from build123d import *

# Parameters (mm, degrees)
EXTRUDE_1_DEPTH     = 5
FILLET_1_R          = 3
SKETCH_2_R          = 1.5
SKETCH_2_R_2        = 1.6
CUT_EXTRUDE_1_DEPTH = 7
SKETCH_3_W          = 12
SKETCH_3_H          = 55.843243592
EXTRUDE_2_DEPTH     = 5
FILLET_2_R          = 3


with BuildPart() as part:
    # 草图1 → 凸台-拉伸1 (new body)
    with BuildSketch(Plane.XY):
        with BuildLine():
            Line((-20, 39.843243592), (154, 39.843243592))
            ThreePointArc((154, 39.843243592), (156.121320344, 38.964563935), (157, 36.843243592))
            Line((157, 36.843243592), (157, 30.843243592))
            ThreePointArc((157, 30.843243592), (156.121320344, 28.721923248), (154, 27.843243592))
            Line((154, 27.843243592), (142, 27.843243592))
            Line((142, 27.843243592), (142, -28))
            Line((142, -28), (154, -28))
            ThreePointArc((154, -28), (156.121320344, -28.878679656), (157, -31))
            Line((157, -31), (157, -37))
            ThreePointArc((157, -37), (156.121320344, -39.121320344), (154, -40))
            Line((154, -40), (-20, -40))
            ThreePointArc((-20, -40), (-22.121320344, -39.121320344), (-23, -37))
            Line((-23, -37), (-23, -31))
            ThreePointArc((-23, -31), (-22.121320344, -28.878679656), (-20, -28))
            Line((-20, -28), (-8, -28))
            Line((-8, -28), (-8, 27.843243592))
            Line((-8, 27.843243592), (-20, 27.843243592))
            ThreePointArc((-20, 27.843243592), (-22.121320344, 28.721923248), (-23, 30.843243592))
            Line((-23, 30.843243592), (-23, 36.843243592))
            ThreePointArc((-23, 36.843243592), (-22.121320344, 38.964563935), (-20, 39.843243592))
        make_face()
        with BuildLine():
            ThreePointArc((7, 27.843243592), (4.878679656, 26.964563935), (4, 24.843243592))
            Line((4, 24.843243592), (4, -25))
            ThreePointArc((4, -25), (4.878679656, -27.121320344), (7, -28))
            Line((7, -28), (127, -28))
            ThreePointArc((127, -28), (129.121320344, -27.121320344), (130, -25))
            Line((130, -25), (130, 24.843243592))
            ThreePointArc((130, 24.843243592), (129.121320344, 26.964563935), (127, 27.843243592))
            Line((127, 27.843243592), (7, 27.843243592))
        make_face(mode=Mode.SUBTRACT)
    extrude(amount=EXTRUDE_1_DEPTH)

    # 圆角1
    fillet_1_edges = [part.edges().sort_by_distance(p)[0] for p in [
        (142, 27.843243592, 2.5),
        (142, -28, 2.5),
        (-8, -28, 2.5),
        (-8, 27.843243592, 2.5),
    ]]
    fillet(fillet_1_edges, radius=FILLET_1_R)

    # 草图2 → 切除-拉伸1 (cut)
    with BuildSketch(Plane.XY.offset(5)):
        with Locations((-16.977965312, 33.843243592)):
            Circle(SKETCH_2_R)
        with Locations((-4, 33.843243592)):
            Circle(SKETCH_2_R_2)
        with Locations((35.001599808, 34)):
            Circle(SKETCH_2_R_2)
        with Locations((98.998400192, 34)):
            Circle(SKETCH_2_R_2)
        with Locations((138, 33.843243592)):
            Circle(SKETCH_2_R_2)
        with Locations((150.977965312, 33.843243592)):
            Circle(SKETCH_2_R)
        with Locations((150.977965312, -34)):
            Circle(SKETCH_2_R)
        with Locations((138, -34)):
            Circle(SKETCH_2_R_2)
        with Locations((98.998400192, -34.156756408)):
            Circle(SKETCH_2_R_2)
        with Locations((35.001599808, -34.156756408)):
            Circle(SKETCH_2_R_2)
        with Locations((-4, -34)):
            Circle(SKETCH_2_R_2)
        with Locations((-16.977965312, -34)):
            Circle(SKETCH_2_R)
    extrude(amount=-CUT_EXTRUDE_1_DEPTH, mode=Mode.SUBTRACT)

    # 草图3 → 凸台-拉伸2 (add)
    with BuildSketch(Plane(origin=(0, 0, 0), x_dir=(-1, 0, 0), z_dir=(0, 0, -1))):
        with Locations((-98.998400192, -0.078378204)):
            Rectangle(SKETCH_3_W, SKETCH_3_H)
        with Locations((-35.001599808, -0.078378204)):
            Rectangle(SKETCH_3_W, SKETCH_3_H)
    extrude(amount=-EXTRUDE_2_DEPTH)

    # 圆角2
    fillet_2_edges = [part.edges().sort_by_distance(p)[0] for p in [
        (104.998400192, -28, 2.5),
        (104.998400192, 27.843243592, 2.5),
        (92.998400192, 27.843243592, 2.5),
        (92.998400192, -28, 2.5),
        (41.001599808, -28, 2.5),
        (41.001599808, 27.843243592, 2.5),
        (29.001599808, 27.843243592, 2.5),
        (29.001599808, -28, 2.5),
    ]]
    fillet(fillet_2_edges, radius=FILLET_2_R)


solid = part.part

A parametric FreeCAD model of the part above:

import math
import FreeCAD as App
import Part
import Sketcher
from FreeCAD import Vector
Q = App.Units.Quantity


def edges_at(feature, points):
    """Names of the edges that pass closest to the given points."""
    edges = feature.Shape.Edges
    near = lambda p: min(range(len(edges)), key=lambda i: edges[i].distToShape(Part.Vertex(*p))[0])
    return sorted({f"Edge{near(p) + 1}" for p in points})


def add_polygon(sketch, points):
    """Adds a closed chain of lines whose ends are joined by coincident constraints."""
    first, n = sketch.GeometryCount, len(points)
    for a, b in zip(points, points[1:] + points[:1]):
        sketch.addGeometry(Part.LineSegment(App.Vector(*a, 0), App.Vector(*b, 0)), False)
    for i in range(n):
        sketch.addConstraint(Sketcher.Constraint("Coincident", first + i, 2, first + (i + 1) % n, 1))

doc = App.newDocument("Part")
params = doc.addObject("Spreadsheet::Sheet", "Params")
for row, (alias, value) in enumerate([
    ("sketch1_radius", "3 mm"),
    ("sketch1_width", "174 mm"),
    ("sketch1_width2", "12 mm"),
    ("sketch1_width3", "120 mm"),
    ("sketch1_height", "6 mm"),
    ("pad1_length", "5 mm"),
    ("fillet_radius", "3 mm"),
    ("sketch2_diameter", "3 mm"),
    ("sketch2_diameter2", "3.2 mm"),
    ("pocket1_length", "7 mm"),
    ("sketch3_width", "12 mm"),
    ("pad2_length", "5 mm"),
    ("fillet2_radius", "3 mm"),
], start=1):
    params.set(f"A{row}", alias)
    params.set(f"B{row}", "=" + value)
    params.setAlias(f"B{row}", alias)

body = doc.addObject("PartDesign::Body", "Body")

# Sketch on XY plane
sketch1 = doc.addObject("Sketcher::SketchObject", "Sketch")
body.addObject(sketch1)
sketch1.AttachmentSupport = (doc.XY_Plane, [""])
sketch1.MapMode = "FlatFace"
sketch1.addGeometry(Part.LineSegment(Vector(154, 39.843244, 0), Vector(-20, 39.843244, 0)), False)
sketch1.addGeometry(Part.ArcOfCircle(Part.Circle(Vector(-20, 36.843244, 0), Vector(0, 0, 1), 3), math.radians(90), math.radians(180)), False)
sketch1.addGeometry(Part.LineSegment(Vector(-23, 36.843244, 0), Vector(-23, 30.843244, 0)), False)
sketch1.addGeometry(Part.ArcOfCircle(Part.Circle(Vector(-20, 30.843244, 0), Vector(0, 0, 1), 3), math.radians(180), math.radians(270)), False)
sketch1.addGeometry(Part.LineSegment(Vector(-20, 27.843244, 0), Vector(-8, 27.843244, 0)), False)
sketch1.addGeometry(Part.LineSegment(Vector(-8, 27.843244, 0), Vector(-8, -28, 0)), False)
sketch1.addGeometry(Part.LineSegment(Vector(-8, -28, 0), Vector(-20, -28, 0)), False)
sketch1.addGeometry(Part.ArcOfCircle(Part.Circle(Vector(-20, -31, 0), Vector(0, 0, 1), 3), math.radians(90), math.radians(180)), False)
sketch1.addGeometry(Part.LineSegment(Vector(-23, -31, 0), Vector(-23, -37, 0)), False)
sketch1.addGeometry(Part.ArcOfCircle(Part.Circle(Vector(-20, -37, 0), Vector(0, 0, 1), 3), math.radians(180), math.radians(270)), False)
sketch1.addGeometry(Part.LineSegment(Vector(-20, -40, 0), Vector(154, -40, 0)), False)
sketch1.addGeometry(Part.ArcOfCircle(Part.Circle(Vector(154, -37, 0), Vector(0, 0, 1), 3), math.radians(-90), math.radians(0)), False)
sketch1.addGeometry(Part.LineSegment(Vector(157, -37, 0), Vector(157, -31, 0)), False)
sketch1.addGeometry(Part.ArcOfCircle(Part.Circle(Vector(154, -31, 0), Vector(0, 0, 1), 3), math.radians(0), math.radians(90)), False)
sketch1.addGeometry(Part.LineSegment(Vector(154, -28, 0), Vector(142, -28, 0)), False)
sketch1.addGeometry(Part.LineSegment(Vector(142, -28, 0), Vector(142, 27.843244, 0)), False)
sketch1.addGeometry(Part.LineSegment(Vector(142, 27.843244, 0), Vector(154, 27.843244, 0)), False)
sketch1.addGeometry(Part.ArcOfCircle(Part.Circle(Vector(154, 30.843244, 0), Vector(0, 0, 1), 3), math.radians(-90), math.radians(0)), False)
sketch1.addGeometry(Part.LineSegment(Vector(157, 30.843244, 0), Vector(157, 36.843244, 0)), False)
sketch1.addGeometry(Part.ArcOfCircle(Part.Circle(Vector(154, 36.843244, 0), Vector(0, 0, 1), 3), math.radians(0), math.radians(90)), False)
sketch1.addGeometry(Part.LineSegment(Vector(7, 27.843244, 0), Vector(127, 27.843244, 0)), False)
sketch1.addGeometry(Part.ArcOfCircle(Part.Circle(Vector(127, 24.843244, 0), Vector(0, 0, 1), 3), math.radians(0), math.radians(90)), False)
sketch1.addGeometry(Part.LineSegment(Vector(130, 24.843244, 0), Vector(130, -25, 0)), False)
sketch1.addGeometry(Part.ArcOfCircle(Part.Circle(Vector(127, -25, 0), Vector(0, 0, 1), 3), math.radians(-90), math.radians(0)), False)
sketch1.addGeometry(Part.LineSegment(Vector(127, -28, 0), Vector(7, -28, 0)), False)
sketch1.addGeometry(Part.ArcOfCircle(Part.Circle(Vector(7, -25, 0), Vector(0, 0, 1), 3), math.radians(180), math.radians(270)), False)
sketch1.addGeometry(Part.LineSegment(Vector(4, -25, 0), Vector(4, 24.843244, 0)), False)
sketch1.addGeometry(Part.ArcOfCircle(Part.Circle(Vector(7, 24.843244, 0), Vector(0, 0, 1), 3), math.radians(90), math.radians(180)), False)
sketch1.addConstraint(Sketcher.Constraint("Tangent", 0, 2, 1, 1))
sketch1.addConstraint(Sketcher.Constraint("Tangent", 1, 2, 2, 1))
sketch1.addConstraint(Sketcher.Constraint("Tangent", 2, 2, 3, 1))
sketch1.addConstraint(Sketcher.Constraint("Tangent", 3, 2, 4, 1))
sketch1.addConstraint(Sketcher.Constraint("Coincident", 4, 2, 5, 1))
sketch1.addConstraint(Sketcher.Constraint("Coincident", 5, 2, 6, 1))
sketch1.addConstraint(Sketcher.Constraint("Tangent", 6, 2, 7, 1))
sketch1.addConstraint(Sketcher.Constraint("Tangent", 7, 2, 8, 1))
sketch1.addConstraint(Sketcher.Constraint("Tangent", 8, 2, 9, 1))
sketch1.addConstraint(Sketcher.Constraint("Tangent", 9, 2, 10, 1))
sketch1.addConstraint(Sketcher.Constraint("Tangent", 10, 2, 11, 1))
sketch1.addConstraint(Sketcher.Constraint("Tangent", 11, 2, 12, 1))
sketch1.addConstraint(Sketcher.Constraint("Tangent", 12, 2, 13, 1))
sketch1.addConstraint(Sketcher.Constraint("Tangent", 13, 2, 14, 1))
sketch1.addConstraint(Sketcher.Constraint("Coincident", 14, 2, 15, 1))
sketch1.addConstraint(Sketcher.Constraint("Coincident", 15, 2, 16, 1))
sketch1.addConstraint(Sketcher.Constraint("Tangent", 16, 2, 17, 1))
sketch1.addConstraint(Sketcher.Constraint("Tangent", 17, 2, 18, 1))
sketch1.addConstraint(Sketcher.Constraint("Tangent", 18, 2, 19, 1))
sketch1.addConstraint(Sketcher.Constraint("Tangent", 19, 2, 0, 1))
sketch1.addConstraint(Sketcher.Constraint("Tangent", 20, 2, 21, 2))
sketch1.addConstraint(Sketcher.Constraint("Tangent", 21, 1, 22, 1))
sketch1.addConstraint(Sketcher.Constraint("Tangent", 22, 2, 23, 2))
sketch1.addConstraint(Sketcher.Constraint("Tangent", 23, 1, 24, 1))
sketch1.addConstraint(Sketcher.Constraint("Tangent", 24, 2, 25, 2))
sketch1.addConstraint(Sketcher.Constraint("Tangent", 25, 1, 26, 1))
sketch1.addConstraint(Sketcher.Constraint("Tangent", 26, 2, 27, 2))
sketch1.addConstraint(Sketcher.Constraint("Tangent", 27, 1, 20, 1))
sketch1.addConstraint(Sketcher.Constraint("Horizontal", 0))
sketch1.addConstraint(Sketcher.Constraint("Vertical", 2))
sketch1.addConstraint(Sketcher.Constraint("Horizontal", 4))
sketch1.addConstraint(Sketcher.Constraint("Vertical", 5))
sketch1.addConstraint(Sketcher.Constraint("Horizontal", 6))
sketch1.addConstraint(Sketcher.Constraint("Vertical", 8))
sketch1.addConstraint(Sketcher.Constraint("Horizontal", 10))
sketch1.addConstraint(Sketcher.Constraint("Vertical", 12))
sketch1.addConstraint(Sketcher.Constraint("Horizontal", 14))
sketch1.addConstraint(Sketcher.Constraint("Vertical", 15))
sketch1.addConstraint(Sketcher.Constraint("Horizontal", 16))
sketch1.addConstraint(Sketcher.Constraint("Vertical", 18))
sketch1.addConstraint(Sketcher.Constraint("Horizontal", 20))
sketch1.addConstraint(Sketcher.Constraint("Vertical", 22))
sketch1.addConstraint(Sketcher.Constraint("Horizontal", 24))
sketch1.addConstraint(Sketcher.Constraint("Vertical", 26))
sketch1.addConstraint(Sketcher.Constraint("Equal", 1, 3))
sketch1.addConstraint(Sketcher.Constraint("Equal", 3, 7))
sketch1.addConstraint(Sketcher.Constraint("Equal", 7, 9))
sketch1.addConstraint(Sketcher.Constraint("Equal", 9, 11))
sketch1.addConstraint(Sketcher.Constraint("Equal", 11, 13))
sketch1.addConstraint(Sketcher.Constraint("Equal", 13, 17))
sketch1.addConstraint(Sketcher.Constraint("Equal", 17, 19))
sketch1.addConstraint(Sketcher.Constraint("Equal", 19, 21))
sketch1.addConstraint(Sketcher.Constraint("Equal", 21, 23))
sketch1.addConstraint(Sketcher.Constraint("Equal", 23, 25))
sketch1.addConstraint(Sketcher.Constraint("Equal", 25, 27))
sketch1.addConstraint(Sketcher.Constraint("Horizontal", 7, 3, 13, 3))
sketch1.addConstraint(Sketcher.Constraint("Horizontal", 3, 3, 17, 3))
sketch1.addConstraint(Sketcher.Constraint("Horizontal", 16, 2, 20, 2))
sketch1.addConstraint(Sketcher.Constraint("Horizontal", 14, 2, 23, 1))
sketch1.addConstraint(Sketcher.Constraint("Vertical", 3, 3, 7, 3))
sketch1.addConstraint(Sketcher.Constraint("Vertical", 13, 3, 17, 3))
sketch1.addConstraint(Sketcher.Constraint("Equal", 6, 14))
sketch1.addConstraint(Sketcher.Constraint("Equal", 2, 8))
sketch1.addConstraint(Sketcher.Constraint("Radius", 1, Q("3 mm")))
sketch1.addConstraint(Sketcher.Constraint("DistanceX", 0, 2, 0, 1, Q("174 mm")))
sketch1.addConstraint(Sketcher.Constraint("DistanceX", 4, 1, 4, 2, Q("12 mm")))
sketch1.addConstraint(Sketcher.Constraint("DistanceX", 20, 1, 20, 2, Q("120 mm")))
sketch1.addConstraint(Sketcher.Constraint("DistanceY", 2, 2, 2, 1, Q("6 mm")))
sketch1.addConstraint(Sketcher.Constraint("DistanceX", 1, 3, -1, 1, Q("20 mm")))
sketch1.addConstraint(Sketcher.Constraint("DistanceY", 7, 3, -1, 1, Q("31 mm")))
sketch1.addConstraint(Sketcher.Constraint("DistanceX", -1, 1, 21, 3, Q("127 mm")))
sketch1.addConstraint(Sketcher.Constraint("DistanceY", 5, 2, 5, 1, Q("55.843244 mm")))
sketch1.setExpression("Constraints[63]", "Params.sketch1_radius")
sketch1.setExpression("Constraints[64]", "Params.sketch1_width")
sketch1.setExpression("Constraints[65]", "Params.sketch1_width2")
sketch1.setExpression("Constraints[66]", "Params.sketch1_width3")
sketch1.setExpression("Constraints[67]", "Params.sketch1_height")
pad1 = doc.addObject("PartDesign::Pad", "Pad")
body.addObject(pad1)
pad1.Profile = sketch1
pad1.setExpression("Length", "Params.pad1_length")
doc.recompute()

fillet = doc.addObject("PartDesign::Fillet", "Fillet")
body.addObject(fillet)
fillet.Base = (pad1, edges_at(pad1, [
    (142, 27.843, 2.5),
    (142, -28, 2.5),
    (-8, -28, 2.5),
    (-8, 27.843, 2.5),
]))
fillet.setExpression("Radius", "Params.fillet_radius")

# Sketch on XY plane
sketch2 = doc.addObject("Sketcher::SketchObject", "Sketch001")
body.addObject(sketch2)
sketch2.AttachmentSupport = (doc.XY_Plane, [""])
sketch2.MapMode = "FlatFace"
sketch2.AttachmentOffset = App.Placement(Vector(0, 0, 5), App.Rotation())
sketch2.addGeometry(Part.Circle(Vector(-16.977965, 33.843244, 0), Vector(0, 0, 1), 1.5), False)
sketch2.addGeometry(Part.Circle(Vector(-4, 33.843244, 0), Vector(0, 0, 1), 1.6), False)
sketch2.addGeometry(Part.Circle(Vector(35.0016, 34, 0), Vector(0, 0, 1), 1.6), False)
sketch2.addGeometry(Part.Circle(Vector(98.9984, 34, 0), Vector(0, 0, 1), 1.6), False)
sketch2.addGeometry(Part.Circle(Vector(138, 33.843244, 0), Vector(0, 0, 1), 1.6), False)
sketch2.addGeometry(Part.Circle(Vector(150.977965, 33.843244, 0), Vector(0, 0, 1), 1.5), False)
sketch2.addGeometry(Part.Circle(Vector(150.977965, -34, 0), Vector(0, 0, 1), 1.5), False)
sketch2.addGeometry(Part.Circle(Vector(138, -34, 0), Vector(0, 0, 1), 1.6), False)
sketch2.addGeometry(Part.Circle(Vector(98.9984, -34.156756, 0), Vector(0, 0, 1), 1.6), False)
sketch2.addGeometry(Part.Circle(Vector(35.0016, -34.156756, 0), Vector(0, 0, 1), 1.6), False)
sketch2.addGeometry(Part.Circle(Vector(-4, -34, 0), Vector(0, 0, 1), 1.6), False)
sketch2.addGeometry(Part.Circle(Vector(-16.977965, -34, 0), Vector(0, 0, 1), 1.5), False)
sketch2.addConstraint(Sketcher.Constraint("Equal", 1, 2))
sketch2.addConstraint(Sketcher.Constraint("Equal", 2, 3))
sketch2.addConstraint(Sketcher.Constraint("Equal", 3, 4))
sketch2.addConstraint(Sketcher.Constraint("Equal", 0, 5))
sketch2.addConstraint(Sketcher.Constraint("Equal", 5, 6))
sketch2.addConstraint(Sketcher.Constraint("Equal", 4, 7))
sketch2.addConstraint(Sketcher.Constraint("Equal", 7, 8))
sketch2.addConstraint(Sketcher.Constraint("Equal", 8, 9))
sketch2.addConstraint(Sketcher.Constraint("Equal", 9, 10))
sketch2.addConstraint(Sketcher.Constraint("Equal", 6, 11))
sketch2.addConstraint(Sketcher.Constraint("Horizontal", 0, 3, 1, 3))
sketch2.addConstraint(Sketcher.Constraint("Horizontal", 2, 3, 3, 3))
sketch2.addConstraint(Sketcher.Constraint("Horizontal", 1, 3, 4, 3))
sketch2.addConstraint(Sketcher.Constraint("Horizontal", 4, 3, 5, 3))
sketch2.addConstraint(Sketcher.Constraint("Horizontal", 6, 3, 7, 3))
sketch2.addConstraint(Sketcher.Constraint("Horizontal", 8, 3, 9, 3))
sketch2.addConstraint(Sketcher.Constraint("Horizontal", 7, 3, 10, 3))
sketch2.addConstraint(Sketcher.Constraint("Horizontal", 10, 3, 11, 3))
sketch2.addConstraint(Sketcher.Constraint("Vertical", 5, 3, 6, 3))
sketch2.addConstraint(Sketcher.Constraint("Vertical", 4, 3, 7, 3))
sketch2.addConstraint(Sketcher.Constraint("Vertical", 3, 3, 8, 3))
sketch2.addConstraint(Sketcher.Constraint("Vertical", 2, 3, 9, 3))
sketch2.addConstraint(Sketcher.Constraint("Vertical", 1, 3, 10, 3))
sketch2.addConstraint(Sketcher.Constraint("Vertical", 0, 3, 11, 3))
sketch2.addConstraint(Sketcher.Constraint("Diameter", 0, Q("3 mm")))
sketch2.addConstraint(Sketcher.Constraint("Diameter", 1, Q("3.2 mm")))
sketch2.addConstraint(Sketcher.Constraint("DistanceX", 1, 3, -1, 1, Q("4 mm")))
sketch2.addConstraint(Sketcher.Constraint("DistanceY", -1, 1, 2, 3, Q("34 mm")))
sketch2.addConstraint(Sketcher.Constraint("DistanceX", -1, 1, 4, 3, Q("138 mm")))
sketch2.addConstraint(Sketcher.Constraint("DistanceY", 6, 3, -1, 1, Q("34 mm")))
sketch2.addConstraint(Sketcher.Constraint("DistanceY", 8, 3, 4, 3, Q("68 mm")))
sketch2.addConstraint(Sketcher.Constraint("DistanceX", -1, 1, 2, 3, Q("35.0016 mm")))
sketch2.addConstraint(Sketcher.Constraint("DistanceX", -1, 1, 3, 3, Q("98.9984 mm")))
sketch2.addConstraint(Sketcher.Constraint("DistanceX", 0, 3, 5, 3, Q("167.955931 mm")))
sketch2.addConstraint(Sketcher.Constraint("DistanceX", 0, 3, -1, 1, Q("16.977965 mm")))
sketch2.addConstraint(Sketcher.Constraint("DistanceY", -1, 1, 0, 3, Q("33.843244 mm")))
sketch2.setExpression("Constraints[24]", "Params.sketch2_diameter")
sketch2.setExpression("Constraints[25]", "Params.sketch2_diameter2")
pocket1 = doc.addObject("PartDesign::Pocket", "Pocket")
body.addObject(pocket1)
pocket1.Profile = sketch2
pocket1.setExpression("Length", "Params.pocket1_length")

# Sketch on XY plane
sketch3 = doc.addObject("Sketcher::SketchObject", "Sketch002")
body.addObject(sketch3)
sketch3.AttachmentSupport = (doc.XY_Plane, [""])
sketch3.MapMode = "FlatFace"
add_polygon(sketch3, [(104.9984, 27.843244), (104.9984, -28), (92.9984, -28), (92.9984, 27.843244)])  # lines 0-3
add_polygon(sketch3, [(41.0016, 27.843244), (41.0016, -28), (29.0016, -28), (29.0016, 27.843244)])  # lines 4-7
sketch3.addConstraint(Sketcher.Constraint("Vertical", 0))
sketch3.addConstraint(Sketcher.Constraint("Horizontal", 1))
sketch3.addConstraint(Sketcher.Constraint("Vertical", 2))
sketch3.addConstraint(Sketcher.Constraint("Horizontal", 3))
sketch3.addConstraint(Sketcher.Constraint("Vertical", 4))
sketch3.addConstraint(Sketcher.Constraint("Horizontal", 5))
sketch3.addConstraint(Sketcher.Constraint("Vertical", 6))
sketch3.addConstraint(Sketcher.Constraint("Horizontal", 7))
sketch3.addConstraint(Sketcher.Constraint("Horizontal", 1, 2, 4, 2))
sketch3.addConstraint(Sketcher.Constraint("Horizontal", 3, 2, 6, 2))
sketch3.addConstraint(Sketcher.Constraint("Equal", 3, 5))
sketch3.addConstraint(Sketcher.Constraint("DistanceX", 1, 2, 1, 1, Q("12 mm")))
sketch3.addConstraint(Sketcher.Constraint("DistanceY", 0, 2, -1, 1, Q("28 mm")))
sketch3.addConstraint(Sketcher.Constraint("DistanceX", -1, 1, 0, 2, Q("104.9984 mm")))
sketch3.addConstraint(Sketcher.Constraint("DistanceX", -1, 1, 4, 2, Q("41.0016 mm")))
sketch3.addConstraint(Sketcher.Constraint("DistanceY", 0, 2, 0, 1, Q("55.843244 mm")))
sketch3.setExpression("Constraints[19]", "Params.sketch3_width")
pad2 = doc.addObject("PartDesign::Pad", "Pad001")
body.addObject(pad2)
pad2.Profile = sketch3
pad2.setExpression("Length", "Params.pad2_length")
doc.recompute()

fillet2 = doc.addObject("PartDesign::Fillet", "Fillet001")
body.addObject(fillet2)
fillet2.Base = (pad2, edges_at(pad2, [
    (104.998, -28, 2.5),
    (104.998, 27.843, 2.5),
    (92.998, 27.843, 2.5),
    (92.998, -28, 2.5),
    (41.002, -28, 2.5),
    (41.002, 27.843, 2.5),
    (29.002, 27.843, 2.5),
    (29.002, -28, 2.5),
]))
fillet2.setExpression("Radius", "Params.fillet2_radius")

doc.recompute()
